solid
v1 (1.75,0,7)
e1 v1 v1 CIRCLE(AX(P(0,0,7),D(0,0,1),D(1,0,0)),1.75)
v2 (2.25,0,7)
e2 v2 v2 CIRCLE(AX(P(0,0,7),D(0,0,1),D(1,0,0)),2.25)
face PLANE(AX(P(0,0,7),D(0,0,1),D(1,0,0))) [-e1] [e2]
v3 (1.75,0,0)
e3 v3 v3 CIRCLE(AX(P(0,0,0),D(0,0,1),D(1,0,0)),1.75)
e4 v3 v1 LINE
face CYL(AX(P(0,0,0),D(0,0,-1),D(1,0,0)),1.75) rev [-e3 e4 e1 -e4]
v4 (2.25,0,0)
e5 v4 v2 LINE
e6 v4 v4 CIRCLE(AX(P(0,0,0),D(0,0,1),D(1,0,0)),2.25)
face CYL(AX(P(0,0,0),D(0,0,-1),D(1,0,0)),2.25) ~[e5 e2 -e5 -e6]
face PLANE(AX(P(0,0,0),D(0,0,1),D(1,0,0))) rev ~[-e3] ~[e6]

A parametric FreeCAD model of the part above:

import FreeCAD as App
import Part
import Sketcher

V = App.Vector
Q = App.Units.Quantity

doc = App.newDocument("Part")
body = doc.addObject("PartDesign::Body", "Body")

# Sketch on XY plane
sketch1 = doc.addObject("Sketcher::SketchObject", "Sketch")
body.addObject(sketch1)
sketch1.AttachmentSupport = (doc.XY_Plane, [""])
sketch1.MapMode = "FlatFace"
sketch1.addGeometry([
    Part.Circle(V(0, 0, 0), V(0, 0, 1), 2.25),
    Part.Circle(V(0, 0, 0), V(0, 0, 1), 1.75),
], False)
sketch1.addConstraint([
    Sketcher.Constraint("Coincident", 0, 3, -1, 1),
    Sketcher.Constraint("Coincident", 1, 3, -1, 1),
    Sketcher.Constraint("Diameter", 0, Q("4.5 mm")),
    Sketcher.Constraint("Diameter", 1, Q("3.5 mm")),
])
pad1 = doc.addObject("PartDesign::Pad", "Pad")
body.addObject(pad1)
pad1.Profile = sketch1
pad1.Length = 7

doc.recompute()
